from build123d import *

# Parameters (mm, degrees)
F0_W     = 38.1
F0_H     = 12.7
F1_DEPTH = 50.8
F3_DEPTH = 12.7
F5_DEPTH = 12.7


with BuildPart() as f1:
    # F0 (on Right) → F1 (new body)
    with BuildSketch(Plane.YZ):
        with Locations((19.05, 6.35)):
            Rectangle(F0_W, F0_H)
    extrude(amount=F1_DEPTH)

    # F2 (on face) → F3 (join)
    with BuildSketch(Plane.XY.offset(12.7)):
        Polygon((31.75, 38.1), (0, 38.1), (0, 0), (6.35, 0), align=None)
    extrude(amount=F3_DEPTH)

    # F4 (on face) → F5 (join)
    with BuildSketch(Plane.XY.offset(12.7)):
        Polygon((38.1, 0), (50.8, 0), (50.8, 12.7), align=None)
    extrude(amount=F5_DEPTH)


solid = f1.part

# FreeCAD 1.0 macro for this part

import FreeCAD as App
import Part
import Sketcher
from FreeCAD import Vector
Q = App.Units.Quantity

doc = App.newDocument("Part")
body = doc.addObject("PartDesign::Body", "Body")

# Sketch on YZ plane
sketch1 = doc.addObject("Sketcher::SketchObject", "Sketch")
body.addObject(sketch1)
sketch1.AttachmentSupport = (doc.YZ_Plane, [""])
sketch1.MapMode = "FlatFace"
sketch1.addGeometry(Part.LineSegment(Vector(0, 13, 0), Vector(0, 0, 0)), False)
sketch1.addGeometry(Part.LineSegment(Vector(0, 0, 0), Vector(38, 0, 0)), False)
sketch1.addGeometry(Part.LineSegment(Vector(38, 0, 0), Vector(38, 13, 0)), False)
sketch1.addGeometry(Part.LineSegment(Vector(38, 13, 0), Vector(0, 13, 0)), False)
sketch1.addConstraint(Sketcher.Constraint("Coincident", 0, 2, 1, 1))
sketch1.addConstraint(Sketcher.Constraint("Coincident", 1, 2, 2, 1))
sketch1.addConstraint(Sketcher.Constraint("Coincident", 2, 2, 3, 1))
sketch1.addConstraint(Sketcher.Constraint("Coincident", 3, 2, 0, 1))
sketch1.addConstraint(Sketcher.Constraint("Vertical", 0))
sketch1.addConstraint(Sketcher.Constraint("Horizontal", 1))
sketch1.addConstraint(Sketcher.Constraint("Vertical", 2))
sketch1.addConstraint(Sketcher.Constraint("Horizontal", 3))
sketch1.addConstraint(Sketcher.Constraint("Coincident", 0, 2, -1, 1))
sketch1.addConstraint(Sketcher.Constraint("DistanceX", 1, 1, 1, 2, Q("1.5 in")))
sketch1.addConstraint(Sketcher.Constraint("DistanceY", 0, 2, 0, 1, Q("0.5 in")))
pad1 = doc.addObject("PartDesign::Pad", "Pad")
body.addObject(pad1)
pad1.Profile = sketch1
pad1.Length = Q("2 in")

# Sketch on XY plane
sketch2 = doc.addObject("Sketcher::SketchObject", "Sketch001")
body.addObject(sketch2)
sketch2.AttachmentSupport = (doc.XY_Plane, [""])
sketch2.MapMode = "FlatFace"
sketch2.AttachmentOffset = App.Placement(Vector(0, 0, 0.5 * 25.4), App.Rotation())
sketch2.addGeometry(Part.LineSegment(Vector(32, 38, 0), Vector(0, 38, 0)), False)
sketch2.addGeometry(Part.LineSegment(Vector(0, 38, 0), Vector(0, 0, 0)), False)
sketch2.addGeometry(Part.LineSegment(Vector(0, 0, 0), Vector(6, 0, 0)), False)
sketch2.addGeometry(Part.LineSegment(Vector(6, 0, 0), Vector(32, 38, 0)), False)
sketch2.addConstraint(Sketcher.Constraint("Coincident", 0, 2, 1, 1))
sketch2.addConstraint(Sketcher.Constraint("Coincident", 1, 2, 2, 1))
sketch2.addConstraint(Sketcher.Constraint("Coincident", 2, 2, 3, 1))
sketch2.addConstraint(Sketcher.Constraint("Coincident", 3, 2, 0, 1))
sketch2.addConstraint(Sketcher.Constraint("Horizontal", 0))
sketch2.addConstraint(Sketcher.Constraint("Vertical", 1))
sketch2.addConstraint(Sketcher.Constraint("Horizontal", 2))
sketch2.addConstraint(Sketcher.Constraint("Coincident", 1, 2, -1, 1))
sketch2.addConstraint(Sketcher.Constraint("DistanceY", 1, 2, 1, 1, Q("1.5 in")))
sketch2.addConstraint(Sketcher.Constraint("DistanceX", 2, 2, 3, 2, Q("1 in")))
sketch2.addConstraint(Sketcher.Constraint("DistanceX", 0, 2, 0, 1, Q("1.25 in")))
pad2 = doc.addObject("PartDesign::Pad", "Pad001")
body.addObject(pad2)
pad2.Profile = sketch2
pad2.Length = Q("0.5 in")

# Sketch on XY plane
sketch3 = doc.addObject("Sketcher::SketchObject", "Sketch002")
body.addObject(sketch3)
sketch3.AttachmentSupport = (doc.XY_Plane, [""])
sketch3.MapMode = "FlatFace"
sketch3.AttachmentOffset = App.Placement(Vector(0, 0, 0.5 * 25.4), App.Rotation())
sketch3.addGeometry(Part.LineSegment(Vector(38, 0, 0), Vector(51, 0, 0)), False)
sketch3.addGeometry(Part.LineSegment(Vector(51, 0, 0), Vector(51, 13, 0)), False)
sketch3.addGeometry(Part.LineSegment(Vector(51, 13, 0), Vector(38, 0, 0)), False)
sketch3.addConstraint(Sketcher.Constraint("Coincident", 0, 2, 1, 1))
sketch3.addConstraint(Sketcher.Constraint("Coincident", 1, 2, 2, 1))
sketch3.addConstraint(Sketcher.Constraint("Coincident", 2, 2, 0, 1))
sketch3.addConstraint(Sketcher.Constraint("Horizontal", 0))
sketch3.addConstraint(Sketcher.Constraint("Vertical", 1))
sketch3.addConstraint(Sketcher.Constraint("PointOnObject", 0, 2, -1))
sketch3.addConstraint(Sketcher.Constraint("Equal", 0, 1))
sketch3.addConstraint(Sketcher.Constraint("DistanceX", 0, 1, 0, 2, Q("0.5 in")))
sketch3.addConstraint(Sketcher.Constraint("DistanceX", -1, 1, 0, 2, Q("2 in")))
pad3 = doc.addObject("PartDesign::Pad", "Pad002")
body.addObject(pad3)
pad3.Profile = sketch3
pad3.Length = Q("0.5 in")

doc.recompute()
